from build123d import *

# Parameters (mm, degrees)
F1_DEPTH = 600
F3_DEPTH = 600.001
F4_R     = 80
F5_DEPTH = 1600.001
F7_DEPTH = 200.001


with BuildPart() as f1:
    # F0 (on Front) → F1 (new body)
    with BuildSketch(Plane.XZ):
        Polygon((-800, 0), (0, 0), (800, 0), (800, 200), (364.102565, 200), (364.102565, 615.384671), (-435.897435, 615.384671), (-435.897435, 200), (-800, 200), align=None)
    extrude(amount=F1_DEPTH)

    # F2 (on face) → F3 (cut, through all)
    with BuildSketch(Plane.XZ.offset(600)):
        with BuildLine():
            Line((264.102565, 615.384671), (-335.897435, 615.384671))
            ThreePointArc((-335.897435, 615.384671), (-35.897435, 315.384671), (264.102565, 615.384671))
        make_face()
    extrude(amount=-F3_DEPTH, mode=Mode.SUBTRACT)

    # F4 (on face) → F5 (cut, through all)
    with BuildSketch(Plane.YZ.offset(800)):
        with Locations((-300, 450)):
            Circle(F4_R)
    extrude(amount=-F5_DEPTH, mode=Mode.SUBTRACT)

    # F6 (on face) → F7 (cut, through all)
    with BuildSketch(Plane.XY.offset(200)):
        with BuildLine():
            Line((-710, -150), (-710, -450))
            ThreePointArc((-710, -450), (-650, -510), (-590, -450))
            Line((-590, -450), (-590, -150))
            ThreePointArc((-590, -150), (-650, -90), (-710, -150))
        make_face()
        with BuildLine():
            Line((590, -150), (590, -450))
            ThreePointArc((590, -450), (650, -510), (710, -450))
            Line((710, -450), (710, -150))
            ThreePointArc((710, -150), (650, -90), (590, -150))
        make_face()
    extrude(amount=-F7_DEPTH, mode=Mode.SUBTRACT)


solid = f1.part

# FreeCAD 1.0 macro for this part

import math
import FreeCAD as App
import Part
import Sketcher
Q = App.Units.Quantity

doc = App.newDocument("Part")
body = doc.addObject("PartDesign::Body", "Body")

# Sketch on XZ plane
sketch1 = doc.addObject("Sketcher::SketchObject", "Sketch")
body.addObject(sketch1)
sketch1.AttachmentSupport = (doc.XZ_Plane, [""])
sketch1.MapMode = "FlatFace"
sketch1.addGeometry(Part.LineSegment(App.Vector(-800, 0, 0), App.Vector(800, 0, 0)), False)
sketch1.addGeometry(Part.LineSegment(App.Vector(800, 0, 0), App.Vector(800, 200, 0)), False)
sketch1.addGeometry(Part.LineSegment(App.Vector(800, 200, 0), App.Vector(364, 200, 0)), False)
sketch1.addGeometry(Part.LineSegment(App.Vector(364, 200, 0), App.Vector(364, 615, 0)), False)
sketch1.addGeometry(Part.LineSegment(App.Vector(364, 615, 0), App.Vector(-436, 615, 0)), False)
sketch1.addGeometry(Part.LineSegment(App.Vector(-436, 615, 0), App.Vector(-436, 200, 0)), False)
sketch1.addGeometry(Part.LineSegment(App.Vector(-436, 200, 0), App.Vector(-800, 200, 0)), False)
sketch1.addGeometry(Part.LineSegment(App.Vector(-800, 200, 0), App.Vector(-800, 0, 0)), False)
sketch1.addConstraint(Sketcher.Constraint("Coincident", 0, 2, 1, 1))
sketch1.addConstraint(Sketcher.Constraint("Coincident", 1, 2, 2, 1))
sketch1.addConstraint(Sketcher.Constraint("Coincident", 2, 2, 3, 1))
sketch1.addConstraint(Sketcher.Constraint("Coincident", 3, 2, 4, 1))
sketch1.addConstraint(Sketcher.Constraint("Coincident", 4, 2, 5, 1))
sketch1.addConstraint(Sketcher.Constraint("Coincident", 5, 2, 6, 1))
sketch1.addConstraint(Sketcher.Constraint("Coincident", 6, 2, 7, 1))
sketch1.addConstraint(Sketcher.Constraint("Coincident", 7, 2, 0, 1))
sketch1.addConstraint(Sketcher.Constraint("Horizontal", 0))
sketch1.addConstraint(Sketcher.Constraint("Vertical", 1))
sketch1.addConstraint(Sketcher.Constraint("Horizontal", 2))
sketch1.addConstraint(Sketcher.Constraint("Vertical", 3))
sketch1.addConstraint(Sketcher.Constraint("Horizontal", 4))
sketch1.addConstraint(Sketcher.Constraint("Vertical", 5))
sketch1.addConstraint(Sketcher.Constraint("Horizontal", 6))
sketch1.addConstraint(Sketcher.Constraint("Vertical", 7))
sketch1.addConstraint(Sketcher.Constraint("Symmetric", 0, 2, 7, 2, -1, 1))
sketch1.addConstraint(Sketcher.Constraint("Horizontal", 2, 2, 5, 2))
sketch1.addConstraint(Sketcher.Constraint("DistanceX", 0, 1, 0, 2, Q("1600 mm")))
sketch1.addConstraint(Sketcher.Constraint("DistanceX", 4, 2, 4, 1, Q("800 mm")))
sketch1.addConstraint(Sketcher.Constraint("DistanceY", 1, 1, 1, 2, Q("200 mm")))
sketch1.addConstraint(Sketcher.Constraint("DistanceY", 3, 1, 3, 2, Q("415.384671 mm")))
sketch1.addConstraint(Sketcher.Constraint("DistanceX", 2, 2, 2, 1, Q("435.897435 mm")))
pad1 = doc.addObject("PartDesign::Pad", "Pad")
body.addObject(pad1)
pad1.Profile = sketch1
pad1.Length = 600

# Sketch on XZ plane
sketch2 = doc.addObject("Sketcher::SketchObject", "Sketch001")
body.addObject(sketch2)
sketch2.AttachmentSupport = (doc.XZ_Plane, [""])
sketch2.MapMode = "FlatFace"
sketch2.AttachmentOffset = App.Placement(App.Vector(0, 0, 600), App.Rotation())
sketch2.addGeometry(Part.LineSegment(App.Vector(264, 615, 0), App.Vector(-336, 615, 0)), False)
sketch2.addGeometry(Part.ArcOfCircle(Part.Circle(App.Vector(-36, 615, 0), App.Vector(0, 0, 1), 300), math.radians(180), math.radians(360)), False)
sketch2.addConstraint(Sketcher.Constraint("Coincident", 0, 1, 1, 2))
sketch2.addConstraint(Sketcher.Constraint("Coincident", 1, 1, 0, 2))
sketch2.addConstraint(Sketcher.Constraint("Horizontal", 0))
sketch2.addConstraint(Sketcher.Constraint("Horizontal", 1, 3, 0, 1))
sketch2.addConstraint(Sketcher.Constraint("Radius", 1, Q("300 mm")))
sketch2.addConstraint(Sketcher.Constraint("DistanceY", -1, 1, 1, 3, Q("615.384671 mm")))
sketch2.addConstraint(Sketcher.Constraint("DistanceX", 1, 3, -1, 1, Q("35.897435 mm")))
pocket1 = doc.addObject("PartDesign::Pocket", "Pocket")
body.addObject(pocket1)
pocket1.Profile = sketch2
pocket1.Type = "ThroughAll"

# Sketch on YZ plane
sketch3 = doc.addObject("Sketcher::SketchObject", "Sketch002")
body.addObject(sketch3)
sketch3.AttachmentSupport = (doc.YZ_Plane, [""])
sketch3.MapMode = "FlatFace"
sketch3.AttachmentOffset = App.Placement(App.Vector(0, 0, 800), App.Rotation())
sketch3.addGeometry(Part.Circle(App.Vector(-300, 450, 0), App.Vector(0, 0, 1), 80), False)
sketch3.addConstraint(Sketcher.Constraint("Diameter", 0, Q("160 mm")))
sketch3.addConstraint(Sketcher.Constraint("DistanceX", 0, 3, -1, 1, Q("300 mm")))
sketch3.addConstraint(Sketcher.Constraint("DistanceY", -1, 1, 0, 3, Q("450 mm")))
pocket2 = doc.addObject("PartDesign::Pocket", "Pocket001")
body.addObject(pocket2)
pocket2.Profile = sketch3
pocket2.Type = "ThroughAll"

# Sketch on XY plane
sketch4 = doc.addObject("Sketcher::SketchObject", "Sketch003")
body.addObject(sketch4)
sketch4.AttachmentSupport = (doc.XY_Plane, [""])
sketch4.MapMode = "FlatFace"
sketch4.AttachmentOffset = App.Placement(App.Vector(0, 0, 200), App.Rotation())
sketch4.addGeometry(Part.LineSegment(App.Vector(-710, -150, 0), App.Vector(-710, -450, 0)), False)
sketch4.addGeometry(Part.ArcOfCircle(Part.Circle(App.Vector(-650, -450, 0), App.Vector(0, 0, 1), 60), math.radians(180), math.radians(360)), False)
sketch4.addGeometry(Part.LineSegment(App.Vector(-590, -450, 0), App.Vector(-590, -150, 0)), False)
sketch4.addGeometry(Part.ArcOfCircle(Part.Circle(App.Vector(-650, -150, 0), App.Vector(0, 0, 1), 60), math.radians(0), math.radians(180)), False)
sketch4.addGeometry(Part.LineSegment(App.Vector(590, -150, 0), App.Vector(590, -450, 0)), False)
sketch4.addGeometry(Part.ArcOfCircle(Part.Circle(App.Vector(650, -450, 0), App.Vector(0, 0, 1), 60), math.radians(180), math.radians(360)), False)
sketch4.addGeometry(Part.LineSegment(App.Vector(710, -450, 0), App.Vector(710, -150, 0)), False)
sketch4.addGeometry(Part.ArcOfCircle(Part.Circle(App.Vector(650, -150, 0), App.Vector(0, 0, 1), 60), math.radians(0), math.radians(180)), False)
sketch4.addConstraint(Sketcher.Constraint("Tangent", 0, 2, 1, 1))
sketch4.addConstraint(Sketcher.Constraint("Tangent", 1, 2, 2, 1))
sketch4.addConstraint(Sketcher.Constraint("Tangent", 2, 2, 3, 1))
sketch4.addConstraint(Sketcher.Constraint("Tangent", 3, 2, 0, 1))
sketch4.addConstraint(Sketcher.Constraint("Tangent", 4, 2, 5, 1))
sketch4.addConstraint(Sketcher.Constraint("Tangent", 5, 2, 6, 1))
sketch4.addConstraint(Sketcher.Constraint("Tangent", 6, 2, 7, 1))
sketch4.addConstraint(Sketcher.Constraint("Tangent", 7, 2, 4, 1))
sketch4.addConstraint(Sketcher.Constraint("Vertical", 0))
sketch4.addConstraint(Sketcher.Constraint("Vertical", 2))
sketch4.addConstraint(Sketcher.Constraint("Vertical", 4))
sketch4.addConstraint(Sketcher.Constraint("Vertical", 6))
sketch4.addConstraint(Sketcher.Constraint("Equal", 3, 5))
sketch4.addConstraint(Sketcher.Constraint("Symmetric", 1, 3, 5, 3, -2))
sketch4.addConstraint(Sketcher.Constraint("Horizontal", 3, 3, 7, 3))
sketch4.addConstraint(Sketcher.Constraint("Radius", 1, Q("60 mm")))
sketch4.addConstraint(Sketcher.Constraint("DistanceY", 0, 2, 0, 1, Q("300 mm")))
sketch4.addConstraint(Sketcher.Constraint("DistanceX", 1, 3, -1, 1, Q("650 mm")))
sketch4.addConstraint(Sketcher.Constraint("DistanceY", 1, 3, -1, 1, Q("450 mm")))
pocket3 = doc.addObject("PartDesign::Pocket", "Pocket002")
body.addObject(pocket3)
pocket3.Profile = sketch4
pocket3.Type = "ThroughAll"

doc.recompute()
